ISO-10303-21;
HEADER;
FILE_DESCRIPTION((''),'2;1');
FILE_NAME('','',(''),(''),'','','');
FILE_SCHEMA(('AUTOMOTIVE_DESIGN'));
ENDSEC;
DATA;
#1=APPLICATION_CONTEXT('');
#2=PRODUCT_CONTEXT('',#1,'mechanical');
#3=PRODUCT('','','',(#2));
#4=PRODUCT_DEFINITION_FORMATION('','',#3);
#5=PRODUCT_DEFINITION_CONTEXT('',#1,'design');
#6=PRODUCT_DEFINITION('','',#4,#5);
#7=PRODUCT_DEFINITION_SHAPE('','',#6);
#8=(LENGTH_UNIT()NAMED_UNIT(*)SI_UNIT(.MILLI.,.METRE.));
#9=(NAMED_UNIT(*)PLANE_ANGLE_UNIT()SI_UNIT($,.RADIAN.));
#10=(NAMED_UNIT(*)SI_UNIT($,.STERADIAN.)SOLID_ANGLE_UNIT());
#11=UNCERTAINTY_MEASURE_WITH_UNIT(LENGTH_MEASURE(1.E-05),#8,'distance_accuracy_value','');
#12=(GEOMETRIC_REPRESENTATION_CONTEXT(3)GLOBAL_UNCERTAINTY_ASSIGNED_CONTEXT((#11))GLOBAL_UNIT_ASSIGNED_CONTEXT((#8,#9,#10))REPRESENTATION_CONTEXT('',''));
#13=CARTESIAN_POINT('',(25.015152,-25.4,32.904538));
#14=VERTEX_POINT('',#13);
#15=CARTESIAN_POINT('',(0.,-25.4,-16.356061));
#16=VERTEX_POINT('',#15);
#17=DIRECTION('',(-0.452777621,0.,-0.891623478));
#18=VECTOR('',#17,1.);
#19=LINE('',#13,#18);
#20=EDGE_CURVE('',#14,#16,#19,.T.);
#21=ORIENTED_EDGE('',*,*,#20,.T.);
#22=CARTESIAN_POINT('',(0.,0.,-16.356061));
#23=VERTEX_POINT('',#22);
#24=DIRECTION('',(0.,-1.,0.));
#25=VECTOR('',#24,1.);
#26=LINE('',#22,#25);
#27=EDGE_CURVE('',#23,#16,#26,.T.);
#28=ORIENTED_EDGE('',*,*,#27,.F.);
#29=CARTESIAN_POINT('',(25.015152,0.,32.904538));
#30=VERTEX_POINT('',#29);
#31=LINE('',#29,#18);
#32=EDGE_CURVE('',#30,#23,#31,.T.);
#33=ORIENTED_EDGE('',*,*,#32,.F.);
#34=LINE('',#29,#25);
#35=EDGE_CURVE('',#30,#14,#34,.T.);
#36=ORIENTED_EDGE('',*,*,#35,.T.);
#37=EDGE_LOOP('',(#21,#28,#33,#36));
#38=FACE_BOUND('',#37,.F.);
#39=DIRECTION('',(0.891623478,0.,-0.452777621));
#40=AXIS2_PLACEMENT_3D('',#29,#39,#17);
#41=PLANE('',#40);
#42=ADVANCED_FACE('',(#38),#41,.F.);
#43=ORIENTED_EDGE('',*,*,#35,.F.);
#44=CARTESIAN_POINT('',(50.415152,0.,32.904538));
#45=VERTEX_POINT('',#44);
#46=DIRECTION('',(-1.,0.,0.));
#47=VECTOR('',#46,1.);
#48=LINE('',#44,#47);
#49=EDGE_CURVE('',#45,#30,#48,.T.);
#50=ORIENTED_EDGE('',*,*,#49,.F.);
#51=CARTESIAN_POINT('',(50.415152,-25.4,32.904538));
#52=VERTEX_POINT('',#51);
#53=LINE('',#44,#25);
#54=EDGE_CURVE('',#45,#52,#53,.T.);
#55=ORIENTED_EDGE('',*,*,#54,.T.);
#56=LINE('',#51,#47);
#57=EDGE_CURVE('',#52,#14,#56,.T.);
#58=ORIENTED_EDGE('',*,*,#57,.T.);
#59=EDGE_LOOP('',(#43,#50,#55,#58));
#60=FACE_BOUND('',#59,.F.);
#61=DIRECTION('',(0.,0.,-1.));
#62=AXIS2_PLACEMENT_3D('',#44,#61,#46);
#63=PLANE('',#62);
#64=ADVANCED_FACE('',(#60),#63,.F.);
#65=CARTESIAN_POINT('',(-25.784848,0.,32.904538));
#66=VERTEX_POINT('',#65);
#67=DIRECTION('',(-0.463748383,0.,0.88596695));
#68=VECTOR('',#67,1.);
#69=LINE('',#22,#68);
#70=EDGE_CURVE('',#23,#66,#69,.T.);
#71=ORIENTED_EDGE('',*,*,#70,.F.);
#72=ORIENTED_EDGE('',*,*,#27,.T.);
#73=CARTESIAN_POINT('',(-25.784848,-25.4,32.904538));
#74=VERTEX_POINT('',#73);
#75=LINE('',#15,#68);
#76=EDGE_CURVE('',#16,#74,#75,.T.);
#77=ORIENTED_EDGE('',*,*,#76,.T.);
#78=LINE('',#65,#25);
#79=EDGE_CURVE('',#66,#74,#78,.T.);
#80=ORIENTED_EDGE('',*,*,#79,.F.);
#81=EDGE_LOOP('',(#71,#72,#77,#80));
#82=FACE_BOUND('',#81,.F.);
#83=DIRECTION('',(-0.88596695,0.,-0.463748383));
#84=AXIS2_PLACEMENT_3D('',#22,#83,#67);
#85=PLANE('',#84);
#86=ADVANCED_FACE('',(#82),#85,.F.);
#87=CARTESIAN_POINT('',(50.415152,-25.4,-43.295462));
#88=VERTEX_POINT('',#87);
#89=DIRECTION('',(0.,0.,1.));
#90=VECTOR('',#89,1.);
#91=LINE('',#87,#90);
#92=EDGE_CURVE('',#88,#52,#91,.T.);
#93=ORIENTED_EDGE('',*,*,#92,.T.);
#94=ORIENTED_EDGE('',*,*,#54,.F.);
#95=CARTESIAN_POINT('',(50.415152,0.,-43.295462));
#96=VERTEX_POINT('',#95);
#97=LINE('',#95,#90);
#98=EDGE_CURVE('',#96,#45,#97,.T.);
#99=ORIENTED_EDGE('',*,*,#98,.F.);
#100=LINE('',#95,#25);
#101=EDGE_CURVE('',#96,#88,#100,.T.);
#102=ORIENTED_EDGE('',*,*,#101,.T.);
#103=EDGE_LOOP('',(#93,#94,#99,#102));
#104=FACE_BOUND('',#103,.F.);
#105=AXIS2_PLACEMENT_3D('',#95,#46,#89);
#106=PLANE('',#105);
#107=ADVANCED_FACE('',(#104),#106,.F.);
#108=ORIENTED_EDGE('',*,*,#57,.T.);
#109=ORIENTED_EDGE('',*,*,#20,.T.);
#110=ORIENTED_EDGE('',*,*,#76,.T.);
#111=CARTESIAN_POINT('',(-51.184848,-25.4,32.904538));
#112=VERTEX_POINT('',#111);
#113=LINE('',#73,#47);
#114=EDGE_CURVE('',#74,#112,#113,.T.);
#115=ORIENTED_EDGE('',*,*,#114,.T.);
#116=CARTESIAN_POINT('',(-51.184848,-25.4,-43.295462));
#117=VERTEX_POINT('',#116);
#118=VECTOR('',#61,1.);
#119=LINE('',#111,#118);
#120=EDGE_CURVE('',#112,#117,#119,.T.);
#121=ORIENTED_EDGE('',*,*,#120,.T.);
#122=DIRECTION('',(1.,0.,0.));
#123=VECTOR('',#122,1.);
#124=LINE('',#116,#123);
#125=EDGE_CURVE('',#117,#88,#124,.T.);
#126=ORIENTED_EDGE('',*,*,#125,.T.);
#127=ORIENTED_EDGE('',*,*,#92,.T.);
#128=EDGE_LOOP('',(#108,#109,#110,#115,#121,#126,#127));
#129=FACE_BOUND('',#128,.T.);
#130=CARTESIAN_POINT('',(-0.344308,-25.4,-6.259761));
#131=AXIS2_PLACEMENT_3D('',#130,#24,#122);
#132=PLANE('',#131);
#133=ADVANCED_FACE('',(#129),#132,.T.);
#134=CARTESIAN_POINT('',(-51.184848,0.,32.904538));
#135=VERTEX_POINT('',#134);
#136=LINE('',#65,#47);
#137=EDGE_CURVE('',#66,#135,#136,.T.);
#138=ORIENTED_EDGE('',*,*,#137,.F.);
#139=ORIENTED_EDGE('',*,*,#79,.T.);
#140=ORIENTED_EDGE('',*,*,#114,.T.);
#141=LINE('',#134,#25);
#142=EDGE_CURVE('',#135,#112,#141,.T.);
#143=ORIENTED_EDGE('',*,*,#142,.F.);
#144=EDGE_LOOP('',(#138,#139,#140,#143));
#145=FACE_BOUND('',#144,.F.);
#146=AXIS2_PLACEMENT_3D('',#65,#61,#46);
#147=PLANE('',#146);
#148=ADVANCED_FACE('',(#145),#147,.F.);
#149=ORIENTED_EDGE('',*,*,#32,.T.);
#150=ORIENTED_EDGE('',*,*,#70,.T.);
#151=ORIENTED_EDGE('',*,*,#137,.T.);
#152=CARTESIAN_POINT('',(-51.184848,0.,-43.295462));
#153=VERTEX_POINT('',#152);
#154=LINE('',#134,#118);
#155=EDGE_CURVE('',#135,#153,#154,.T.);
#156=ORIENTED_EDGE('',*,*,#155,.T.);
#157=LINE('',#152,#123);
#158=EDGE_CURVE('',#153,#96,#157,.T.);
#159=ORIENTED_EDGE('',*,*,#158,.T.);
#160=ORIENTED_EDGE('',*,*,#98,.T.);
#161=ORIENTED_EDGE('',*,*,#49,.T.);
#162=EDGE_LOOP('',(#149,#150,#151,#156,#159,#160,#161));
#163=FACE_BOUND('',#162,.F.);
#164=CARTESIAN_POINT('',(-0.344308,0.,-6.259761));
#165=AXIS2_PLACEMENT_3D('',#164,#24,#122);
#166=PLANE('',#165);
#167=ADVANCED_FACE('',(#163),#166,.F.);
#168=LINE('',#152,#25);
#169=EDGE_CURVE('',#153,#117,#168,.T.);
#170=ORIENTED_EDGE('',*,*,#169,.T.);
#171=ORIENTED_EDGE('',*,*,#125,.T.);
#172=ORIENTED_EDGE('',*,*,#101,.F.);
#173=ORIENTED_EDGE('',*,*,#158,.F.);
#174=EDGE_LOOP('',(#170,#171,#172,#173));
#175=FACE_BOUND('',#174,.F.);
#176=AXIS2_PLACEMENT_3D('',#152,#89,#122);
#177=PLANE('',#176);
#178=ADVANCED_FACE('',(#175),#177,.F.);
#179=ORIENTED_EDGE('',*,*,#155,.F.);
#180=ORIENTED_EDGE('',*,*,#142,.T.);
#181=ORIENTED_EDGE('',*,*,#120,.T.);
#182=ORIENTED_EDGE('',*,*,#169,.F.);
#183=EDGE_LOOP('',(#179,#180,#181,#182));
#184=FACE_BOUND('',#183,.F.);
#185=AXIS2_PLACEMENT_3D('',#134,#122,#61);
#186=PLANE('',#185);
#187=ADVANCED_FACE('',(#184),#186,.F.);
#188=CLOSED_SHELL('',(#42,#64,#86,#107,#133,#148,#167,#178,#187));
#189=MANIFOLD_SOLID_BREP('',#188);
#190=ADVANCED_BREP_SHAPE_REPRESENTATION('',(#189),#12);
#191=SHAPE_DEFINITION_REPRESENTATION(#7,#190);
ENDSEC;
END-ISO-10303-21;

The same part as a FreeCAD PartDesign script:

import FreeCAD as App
import Part
import Sketcher
from FreeCAD import Vector
Q = App.Units.Quantity

doc = App.newDocument("Part")
params = doc.addObject("Spreadsheet::Sheet", "Params")
for row, (alias, value) in enumerate([
    ("sketch1_width", "4 in"),
    ("sketch1_width2", "1 in"),
    ("sketch1_height", "3 in"),
    ("pad1_length", "1 in"),
], start=1):
    params.set(f"A{row}", alias)
    params.set(f"B{row}", "=" + value)
    params.setAlias(f"B{row}", alias)

body = doc.addObject("PartDesign::Body", "Body")

# Sketch on XZ plane
sketch1 = body.newObject("Sketcher::SketchObject", "Sketch")
sketch1.AttachmentSupport = (doc.getObject("XZ_Plane"), [""])
sketch1.MapMode = "FlatFace"
sketch1.addGeometry([
    Part.LineSegment(Vector(-51.184848, 32.904538, 0), Vector(-51.184848, -43.295462, 0)),  # 0
    Part.LineSegment(Vector(-51.184848, -43.295462, 0), Vector(50.415152, -43.295462, 0)),  # 1
    Part.LineSegment(Vector(50.415152, -43.295462, 0), Vector(50.415152, 32.904538, 0)),  # 2
    Part.LineSegment(Vector(50.415152, 32.904538, 0), Vector(25.015152, 32.904538, 0)),  # 3
    Part.LineSegment(Vector(25.015152, 32.904538, 0), Vector(0, -16.356061, 0)),  # 4
    Part.LineSegment(Vector(0, -16.356061, 0), Vector(-25.784848, 32.904538, 0)),  # 5
    Part.LineSegment(Vector(-25.784848, 32.904538, 0), Vector(-51.184848, 32.904538, 0)),  # 6
], False)
sketch1.addConstraint([
    Sketcher.Constraint("Coincident", 0, 2, 1, 1),
    Sketcher.Constraint("Coincident", 1, 2, 2, 1),
    Sketcher.Constraint("Coincident", 2, 2, 3, 1),
    Sketcher.Constraint("Coincident", 3, 2, 4, 1),
    Sketcher.Constraint("Coincident", 4, 2, 5, 1),
    Sketcher.Constraint("Coincident", 5, 2, 6, 1),
    Sketcher.Constraint("Coincident", 6, 2, 0, 1),
    Sketcher.Constraint("Vertical", 0),
    Sketcher.Constraint("Horizontal", 1),
    Sketcher.Constraint("Vertical", 2),
    Sketcher.Constraint("Horizontal", 3),
    Sketcher.Constraint("Horizontal", 6),
    Sketcher.Constraint("PointOnObject", 4, 2, -2),
    Sketcher.Constraint("Horizontal", 3, 2, 5, 2),
    Sketcher.Constraint("Equal", 3, 6),
    Sketcher.Constraint("DistanceX", 1, 1, 1, 2, Q("4 in")),
    Sketcher.Constraint("DistanceX", 3, 2, 3, 1, Q("1 in")),
    Sketcher.Constraint("DistanceY", 0, 2, 0, 1, Q("3 in")),
    Sketcher.Constraint("DistanceY", 4, 2, 3, 2, 49.260599),
    Sketcher.Constraint("DistanceX", 0, 2, -1, 1, 51.184848),
    Sketcher.Constraint("DistanceY", -1, 1, 2, 2, 32.904538),
])
sketch1.setExpression("Constraints[15]", "Params.sketch1_width")
sketch1.setExpression("Constraints[16]", "Params.sketch1_width2")
sketch1.setExpression("Constraints[17]", "Params.sketch1_height")
pad1 = body.newObject("PartDesign::Pad", "Pad")
pad1.Profile = sketch1
pad1.setExpression("Length", "Params.pad1_length")

doc.recompute()
